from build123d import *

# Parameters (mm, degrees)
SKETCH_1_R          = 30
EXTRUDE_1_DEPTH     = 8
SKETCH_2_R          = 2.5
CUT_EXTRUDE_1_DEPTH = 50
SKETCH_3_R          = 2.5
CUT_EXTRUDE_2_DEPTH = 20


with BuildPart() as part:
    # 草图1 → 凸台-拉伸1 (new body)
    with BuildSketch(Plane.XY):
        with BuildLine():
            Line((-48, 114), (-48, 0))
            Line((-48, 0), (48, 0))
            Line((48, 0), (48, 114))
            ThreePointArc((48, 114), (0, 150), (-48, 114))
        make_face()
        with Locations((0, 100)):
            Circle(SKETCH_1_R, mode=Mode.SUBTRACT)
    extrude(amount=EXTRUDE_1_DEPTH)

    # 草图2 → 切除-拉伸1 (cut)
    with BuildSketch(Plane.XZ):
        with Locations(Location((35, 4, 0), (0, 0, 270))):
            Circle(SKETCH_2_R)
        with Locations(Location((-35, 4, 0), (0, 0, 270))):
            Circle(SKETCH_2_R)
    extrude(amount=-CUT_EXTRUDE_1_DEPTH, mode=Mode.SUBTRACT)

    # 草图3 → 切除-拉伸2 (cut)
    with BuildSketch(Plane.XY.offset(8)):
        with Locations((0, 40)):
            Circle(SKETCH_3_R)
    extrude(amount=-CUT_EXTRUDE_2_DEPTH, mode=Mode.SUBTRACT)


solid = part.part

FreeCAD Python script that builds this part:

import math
import FreeCAD as App
import Part
import Sketcher

V = App.Vector

doc = App.newDocument("Part")
body = doc.addObject("PartDesign::Body", "Body")

# Sketch on XY plane
sketch1 = body.newObject("Sketcher::SketchObject", "Sketch")
sketch1.AttachmentSupport = (doc.getObject("XY_Plane"), [""])
sketch1.MapMode = "FlatFace"
sketch1.addGeometry([
    Part.LineSegment(V(-48, 114, 0), V(-48, 0, 0)),  # 0
    Part.LineSegment(V(-48, 0, 0), V(48, 0, 0)),  # 1
    Part.LineSegment(V(48, 0, 0), V(48, 114, 0)),  # 2
    Part.ArcOfCircle(Part.Circle(V(0, 100, 0), V(0, 0, 1), 50), math.radians(16.260205), math.radians(163.739795)),  # 3
    Part.Circle(V(0, 100, 0), V(0, 0, 1), 30),  # 4
], False)
sketch1.addConstraint([
    Sketcher.Constraint("Coincident", 0, 2, 1, 1),
    Sketcher.Constraint("Coincident", 1, 2, 2, 1),
    Sketcher.Constraint("Coincident", 2, 2, 3, 1),
    Sketcher.Constraint("Coincident", 3, 2, 0, 1),
    Sketcher.Constraint("Vertical", 0),
    Sketcher.Constraint("Horizontal", 1),
    Sketcher.Constraint("Vertical", 2),
    Sketcher.Constraint("Coincident", 4, 3, 3, 3),
    Sketcher.Constraint("Symmetric", 0, 2, 1, 2, -1, 1),
    Sketcher.Constraint("PointOnObject", 3, 3, -2),
    Sketcher.Constraint("Diameter", 4, 60.0),
    Sketcher.Constraint("Radius", 3, 50.0),
    Sketcher.Constraint("DistanceX", 1, 1, 1, 2, 96.0),
    Sketcher.Constraint("DistanceY", 0, 2, 0, 1, 114.0),
])
pad1 = body.newObject("PartDesign::Pad", "Pad")
pad1.Profile = sketch1
pad1.Length = 8

# Sketch on XZ plane
sketch2 = body.newObject("Sketcher::SketchObject", "Sketch001")
sketch2.AttachmentSupport = (doc.getObject("XZ_Plane"), [""])
sketch2.MapMode = "FlatFace"
sketch2.addGeometry([
    Part.Circle(V(35, 4, 0), V(0, 0, 1), 2.5),
    Part.Circle(V(-35, 4, 0), V(0, 0, 1), 2.5),
], False)
sketch2.addConstraint([
    Sketcher.Constraint("Equal", 0, 1),
    Sketcher.Constraint("Symmetric", 0, 3, 1, 3, -2),
    Sketcher.Constraint("Diameter", 0, 5.0),
    Sketcher.Constraint("DistanceX", -1, 1, 0, 3, 35.0),
    Sketcher.Constraint("DistanceY", -1, 1, 0, 3, 4.0),
])
pocket1 = body.newObject("PartDesign::Pocket", "Pocket")
pocket1.Profile = sketch2
pocket1.Length = 50

# Sketch on XY plane
sketch3 = body.newObject("Sketcher::SketchObject", "Sketch002")
sketch3.AttachmentSupport = (doc.getObject("XY_Plane"), [""])
sketch3.MapMode = "FlatFace"
sketch3.AttachmentOffset = App.Placement(V(0, 0, 8), App.Rotation())
sketch3.addGeometry(Part.Circle(V(0, 40, 0), V(0, 0, 1), 2.5), False)
sketch3.addConstraint([
    Sketcher.Constraint("PointOnObject", 0, 3, -2),
    Sketcher.Constraint("Diameter", 0, 5.0),
    Sketcher.Constraint("DistanceY", -1, 1, 0, 3, 40.0),
])
pocket2 = body.newObject("PartDesign::Pocket", "Pocket001")
pocket2.Profile = sketch3
pocket2.Length = 20

doc.recompute()
